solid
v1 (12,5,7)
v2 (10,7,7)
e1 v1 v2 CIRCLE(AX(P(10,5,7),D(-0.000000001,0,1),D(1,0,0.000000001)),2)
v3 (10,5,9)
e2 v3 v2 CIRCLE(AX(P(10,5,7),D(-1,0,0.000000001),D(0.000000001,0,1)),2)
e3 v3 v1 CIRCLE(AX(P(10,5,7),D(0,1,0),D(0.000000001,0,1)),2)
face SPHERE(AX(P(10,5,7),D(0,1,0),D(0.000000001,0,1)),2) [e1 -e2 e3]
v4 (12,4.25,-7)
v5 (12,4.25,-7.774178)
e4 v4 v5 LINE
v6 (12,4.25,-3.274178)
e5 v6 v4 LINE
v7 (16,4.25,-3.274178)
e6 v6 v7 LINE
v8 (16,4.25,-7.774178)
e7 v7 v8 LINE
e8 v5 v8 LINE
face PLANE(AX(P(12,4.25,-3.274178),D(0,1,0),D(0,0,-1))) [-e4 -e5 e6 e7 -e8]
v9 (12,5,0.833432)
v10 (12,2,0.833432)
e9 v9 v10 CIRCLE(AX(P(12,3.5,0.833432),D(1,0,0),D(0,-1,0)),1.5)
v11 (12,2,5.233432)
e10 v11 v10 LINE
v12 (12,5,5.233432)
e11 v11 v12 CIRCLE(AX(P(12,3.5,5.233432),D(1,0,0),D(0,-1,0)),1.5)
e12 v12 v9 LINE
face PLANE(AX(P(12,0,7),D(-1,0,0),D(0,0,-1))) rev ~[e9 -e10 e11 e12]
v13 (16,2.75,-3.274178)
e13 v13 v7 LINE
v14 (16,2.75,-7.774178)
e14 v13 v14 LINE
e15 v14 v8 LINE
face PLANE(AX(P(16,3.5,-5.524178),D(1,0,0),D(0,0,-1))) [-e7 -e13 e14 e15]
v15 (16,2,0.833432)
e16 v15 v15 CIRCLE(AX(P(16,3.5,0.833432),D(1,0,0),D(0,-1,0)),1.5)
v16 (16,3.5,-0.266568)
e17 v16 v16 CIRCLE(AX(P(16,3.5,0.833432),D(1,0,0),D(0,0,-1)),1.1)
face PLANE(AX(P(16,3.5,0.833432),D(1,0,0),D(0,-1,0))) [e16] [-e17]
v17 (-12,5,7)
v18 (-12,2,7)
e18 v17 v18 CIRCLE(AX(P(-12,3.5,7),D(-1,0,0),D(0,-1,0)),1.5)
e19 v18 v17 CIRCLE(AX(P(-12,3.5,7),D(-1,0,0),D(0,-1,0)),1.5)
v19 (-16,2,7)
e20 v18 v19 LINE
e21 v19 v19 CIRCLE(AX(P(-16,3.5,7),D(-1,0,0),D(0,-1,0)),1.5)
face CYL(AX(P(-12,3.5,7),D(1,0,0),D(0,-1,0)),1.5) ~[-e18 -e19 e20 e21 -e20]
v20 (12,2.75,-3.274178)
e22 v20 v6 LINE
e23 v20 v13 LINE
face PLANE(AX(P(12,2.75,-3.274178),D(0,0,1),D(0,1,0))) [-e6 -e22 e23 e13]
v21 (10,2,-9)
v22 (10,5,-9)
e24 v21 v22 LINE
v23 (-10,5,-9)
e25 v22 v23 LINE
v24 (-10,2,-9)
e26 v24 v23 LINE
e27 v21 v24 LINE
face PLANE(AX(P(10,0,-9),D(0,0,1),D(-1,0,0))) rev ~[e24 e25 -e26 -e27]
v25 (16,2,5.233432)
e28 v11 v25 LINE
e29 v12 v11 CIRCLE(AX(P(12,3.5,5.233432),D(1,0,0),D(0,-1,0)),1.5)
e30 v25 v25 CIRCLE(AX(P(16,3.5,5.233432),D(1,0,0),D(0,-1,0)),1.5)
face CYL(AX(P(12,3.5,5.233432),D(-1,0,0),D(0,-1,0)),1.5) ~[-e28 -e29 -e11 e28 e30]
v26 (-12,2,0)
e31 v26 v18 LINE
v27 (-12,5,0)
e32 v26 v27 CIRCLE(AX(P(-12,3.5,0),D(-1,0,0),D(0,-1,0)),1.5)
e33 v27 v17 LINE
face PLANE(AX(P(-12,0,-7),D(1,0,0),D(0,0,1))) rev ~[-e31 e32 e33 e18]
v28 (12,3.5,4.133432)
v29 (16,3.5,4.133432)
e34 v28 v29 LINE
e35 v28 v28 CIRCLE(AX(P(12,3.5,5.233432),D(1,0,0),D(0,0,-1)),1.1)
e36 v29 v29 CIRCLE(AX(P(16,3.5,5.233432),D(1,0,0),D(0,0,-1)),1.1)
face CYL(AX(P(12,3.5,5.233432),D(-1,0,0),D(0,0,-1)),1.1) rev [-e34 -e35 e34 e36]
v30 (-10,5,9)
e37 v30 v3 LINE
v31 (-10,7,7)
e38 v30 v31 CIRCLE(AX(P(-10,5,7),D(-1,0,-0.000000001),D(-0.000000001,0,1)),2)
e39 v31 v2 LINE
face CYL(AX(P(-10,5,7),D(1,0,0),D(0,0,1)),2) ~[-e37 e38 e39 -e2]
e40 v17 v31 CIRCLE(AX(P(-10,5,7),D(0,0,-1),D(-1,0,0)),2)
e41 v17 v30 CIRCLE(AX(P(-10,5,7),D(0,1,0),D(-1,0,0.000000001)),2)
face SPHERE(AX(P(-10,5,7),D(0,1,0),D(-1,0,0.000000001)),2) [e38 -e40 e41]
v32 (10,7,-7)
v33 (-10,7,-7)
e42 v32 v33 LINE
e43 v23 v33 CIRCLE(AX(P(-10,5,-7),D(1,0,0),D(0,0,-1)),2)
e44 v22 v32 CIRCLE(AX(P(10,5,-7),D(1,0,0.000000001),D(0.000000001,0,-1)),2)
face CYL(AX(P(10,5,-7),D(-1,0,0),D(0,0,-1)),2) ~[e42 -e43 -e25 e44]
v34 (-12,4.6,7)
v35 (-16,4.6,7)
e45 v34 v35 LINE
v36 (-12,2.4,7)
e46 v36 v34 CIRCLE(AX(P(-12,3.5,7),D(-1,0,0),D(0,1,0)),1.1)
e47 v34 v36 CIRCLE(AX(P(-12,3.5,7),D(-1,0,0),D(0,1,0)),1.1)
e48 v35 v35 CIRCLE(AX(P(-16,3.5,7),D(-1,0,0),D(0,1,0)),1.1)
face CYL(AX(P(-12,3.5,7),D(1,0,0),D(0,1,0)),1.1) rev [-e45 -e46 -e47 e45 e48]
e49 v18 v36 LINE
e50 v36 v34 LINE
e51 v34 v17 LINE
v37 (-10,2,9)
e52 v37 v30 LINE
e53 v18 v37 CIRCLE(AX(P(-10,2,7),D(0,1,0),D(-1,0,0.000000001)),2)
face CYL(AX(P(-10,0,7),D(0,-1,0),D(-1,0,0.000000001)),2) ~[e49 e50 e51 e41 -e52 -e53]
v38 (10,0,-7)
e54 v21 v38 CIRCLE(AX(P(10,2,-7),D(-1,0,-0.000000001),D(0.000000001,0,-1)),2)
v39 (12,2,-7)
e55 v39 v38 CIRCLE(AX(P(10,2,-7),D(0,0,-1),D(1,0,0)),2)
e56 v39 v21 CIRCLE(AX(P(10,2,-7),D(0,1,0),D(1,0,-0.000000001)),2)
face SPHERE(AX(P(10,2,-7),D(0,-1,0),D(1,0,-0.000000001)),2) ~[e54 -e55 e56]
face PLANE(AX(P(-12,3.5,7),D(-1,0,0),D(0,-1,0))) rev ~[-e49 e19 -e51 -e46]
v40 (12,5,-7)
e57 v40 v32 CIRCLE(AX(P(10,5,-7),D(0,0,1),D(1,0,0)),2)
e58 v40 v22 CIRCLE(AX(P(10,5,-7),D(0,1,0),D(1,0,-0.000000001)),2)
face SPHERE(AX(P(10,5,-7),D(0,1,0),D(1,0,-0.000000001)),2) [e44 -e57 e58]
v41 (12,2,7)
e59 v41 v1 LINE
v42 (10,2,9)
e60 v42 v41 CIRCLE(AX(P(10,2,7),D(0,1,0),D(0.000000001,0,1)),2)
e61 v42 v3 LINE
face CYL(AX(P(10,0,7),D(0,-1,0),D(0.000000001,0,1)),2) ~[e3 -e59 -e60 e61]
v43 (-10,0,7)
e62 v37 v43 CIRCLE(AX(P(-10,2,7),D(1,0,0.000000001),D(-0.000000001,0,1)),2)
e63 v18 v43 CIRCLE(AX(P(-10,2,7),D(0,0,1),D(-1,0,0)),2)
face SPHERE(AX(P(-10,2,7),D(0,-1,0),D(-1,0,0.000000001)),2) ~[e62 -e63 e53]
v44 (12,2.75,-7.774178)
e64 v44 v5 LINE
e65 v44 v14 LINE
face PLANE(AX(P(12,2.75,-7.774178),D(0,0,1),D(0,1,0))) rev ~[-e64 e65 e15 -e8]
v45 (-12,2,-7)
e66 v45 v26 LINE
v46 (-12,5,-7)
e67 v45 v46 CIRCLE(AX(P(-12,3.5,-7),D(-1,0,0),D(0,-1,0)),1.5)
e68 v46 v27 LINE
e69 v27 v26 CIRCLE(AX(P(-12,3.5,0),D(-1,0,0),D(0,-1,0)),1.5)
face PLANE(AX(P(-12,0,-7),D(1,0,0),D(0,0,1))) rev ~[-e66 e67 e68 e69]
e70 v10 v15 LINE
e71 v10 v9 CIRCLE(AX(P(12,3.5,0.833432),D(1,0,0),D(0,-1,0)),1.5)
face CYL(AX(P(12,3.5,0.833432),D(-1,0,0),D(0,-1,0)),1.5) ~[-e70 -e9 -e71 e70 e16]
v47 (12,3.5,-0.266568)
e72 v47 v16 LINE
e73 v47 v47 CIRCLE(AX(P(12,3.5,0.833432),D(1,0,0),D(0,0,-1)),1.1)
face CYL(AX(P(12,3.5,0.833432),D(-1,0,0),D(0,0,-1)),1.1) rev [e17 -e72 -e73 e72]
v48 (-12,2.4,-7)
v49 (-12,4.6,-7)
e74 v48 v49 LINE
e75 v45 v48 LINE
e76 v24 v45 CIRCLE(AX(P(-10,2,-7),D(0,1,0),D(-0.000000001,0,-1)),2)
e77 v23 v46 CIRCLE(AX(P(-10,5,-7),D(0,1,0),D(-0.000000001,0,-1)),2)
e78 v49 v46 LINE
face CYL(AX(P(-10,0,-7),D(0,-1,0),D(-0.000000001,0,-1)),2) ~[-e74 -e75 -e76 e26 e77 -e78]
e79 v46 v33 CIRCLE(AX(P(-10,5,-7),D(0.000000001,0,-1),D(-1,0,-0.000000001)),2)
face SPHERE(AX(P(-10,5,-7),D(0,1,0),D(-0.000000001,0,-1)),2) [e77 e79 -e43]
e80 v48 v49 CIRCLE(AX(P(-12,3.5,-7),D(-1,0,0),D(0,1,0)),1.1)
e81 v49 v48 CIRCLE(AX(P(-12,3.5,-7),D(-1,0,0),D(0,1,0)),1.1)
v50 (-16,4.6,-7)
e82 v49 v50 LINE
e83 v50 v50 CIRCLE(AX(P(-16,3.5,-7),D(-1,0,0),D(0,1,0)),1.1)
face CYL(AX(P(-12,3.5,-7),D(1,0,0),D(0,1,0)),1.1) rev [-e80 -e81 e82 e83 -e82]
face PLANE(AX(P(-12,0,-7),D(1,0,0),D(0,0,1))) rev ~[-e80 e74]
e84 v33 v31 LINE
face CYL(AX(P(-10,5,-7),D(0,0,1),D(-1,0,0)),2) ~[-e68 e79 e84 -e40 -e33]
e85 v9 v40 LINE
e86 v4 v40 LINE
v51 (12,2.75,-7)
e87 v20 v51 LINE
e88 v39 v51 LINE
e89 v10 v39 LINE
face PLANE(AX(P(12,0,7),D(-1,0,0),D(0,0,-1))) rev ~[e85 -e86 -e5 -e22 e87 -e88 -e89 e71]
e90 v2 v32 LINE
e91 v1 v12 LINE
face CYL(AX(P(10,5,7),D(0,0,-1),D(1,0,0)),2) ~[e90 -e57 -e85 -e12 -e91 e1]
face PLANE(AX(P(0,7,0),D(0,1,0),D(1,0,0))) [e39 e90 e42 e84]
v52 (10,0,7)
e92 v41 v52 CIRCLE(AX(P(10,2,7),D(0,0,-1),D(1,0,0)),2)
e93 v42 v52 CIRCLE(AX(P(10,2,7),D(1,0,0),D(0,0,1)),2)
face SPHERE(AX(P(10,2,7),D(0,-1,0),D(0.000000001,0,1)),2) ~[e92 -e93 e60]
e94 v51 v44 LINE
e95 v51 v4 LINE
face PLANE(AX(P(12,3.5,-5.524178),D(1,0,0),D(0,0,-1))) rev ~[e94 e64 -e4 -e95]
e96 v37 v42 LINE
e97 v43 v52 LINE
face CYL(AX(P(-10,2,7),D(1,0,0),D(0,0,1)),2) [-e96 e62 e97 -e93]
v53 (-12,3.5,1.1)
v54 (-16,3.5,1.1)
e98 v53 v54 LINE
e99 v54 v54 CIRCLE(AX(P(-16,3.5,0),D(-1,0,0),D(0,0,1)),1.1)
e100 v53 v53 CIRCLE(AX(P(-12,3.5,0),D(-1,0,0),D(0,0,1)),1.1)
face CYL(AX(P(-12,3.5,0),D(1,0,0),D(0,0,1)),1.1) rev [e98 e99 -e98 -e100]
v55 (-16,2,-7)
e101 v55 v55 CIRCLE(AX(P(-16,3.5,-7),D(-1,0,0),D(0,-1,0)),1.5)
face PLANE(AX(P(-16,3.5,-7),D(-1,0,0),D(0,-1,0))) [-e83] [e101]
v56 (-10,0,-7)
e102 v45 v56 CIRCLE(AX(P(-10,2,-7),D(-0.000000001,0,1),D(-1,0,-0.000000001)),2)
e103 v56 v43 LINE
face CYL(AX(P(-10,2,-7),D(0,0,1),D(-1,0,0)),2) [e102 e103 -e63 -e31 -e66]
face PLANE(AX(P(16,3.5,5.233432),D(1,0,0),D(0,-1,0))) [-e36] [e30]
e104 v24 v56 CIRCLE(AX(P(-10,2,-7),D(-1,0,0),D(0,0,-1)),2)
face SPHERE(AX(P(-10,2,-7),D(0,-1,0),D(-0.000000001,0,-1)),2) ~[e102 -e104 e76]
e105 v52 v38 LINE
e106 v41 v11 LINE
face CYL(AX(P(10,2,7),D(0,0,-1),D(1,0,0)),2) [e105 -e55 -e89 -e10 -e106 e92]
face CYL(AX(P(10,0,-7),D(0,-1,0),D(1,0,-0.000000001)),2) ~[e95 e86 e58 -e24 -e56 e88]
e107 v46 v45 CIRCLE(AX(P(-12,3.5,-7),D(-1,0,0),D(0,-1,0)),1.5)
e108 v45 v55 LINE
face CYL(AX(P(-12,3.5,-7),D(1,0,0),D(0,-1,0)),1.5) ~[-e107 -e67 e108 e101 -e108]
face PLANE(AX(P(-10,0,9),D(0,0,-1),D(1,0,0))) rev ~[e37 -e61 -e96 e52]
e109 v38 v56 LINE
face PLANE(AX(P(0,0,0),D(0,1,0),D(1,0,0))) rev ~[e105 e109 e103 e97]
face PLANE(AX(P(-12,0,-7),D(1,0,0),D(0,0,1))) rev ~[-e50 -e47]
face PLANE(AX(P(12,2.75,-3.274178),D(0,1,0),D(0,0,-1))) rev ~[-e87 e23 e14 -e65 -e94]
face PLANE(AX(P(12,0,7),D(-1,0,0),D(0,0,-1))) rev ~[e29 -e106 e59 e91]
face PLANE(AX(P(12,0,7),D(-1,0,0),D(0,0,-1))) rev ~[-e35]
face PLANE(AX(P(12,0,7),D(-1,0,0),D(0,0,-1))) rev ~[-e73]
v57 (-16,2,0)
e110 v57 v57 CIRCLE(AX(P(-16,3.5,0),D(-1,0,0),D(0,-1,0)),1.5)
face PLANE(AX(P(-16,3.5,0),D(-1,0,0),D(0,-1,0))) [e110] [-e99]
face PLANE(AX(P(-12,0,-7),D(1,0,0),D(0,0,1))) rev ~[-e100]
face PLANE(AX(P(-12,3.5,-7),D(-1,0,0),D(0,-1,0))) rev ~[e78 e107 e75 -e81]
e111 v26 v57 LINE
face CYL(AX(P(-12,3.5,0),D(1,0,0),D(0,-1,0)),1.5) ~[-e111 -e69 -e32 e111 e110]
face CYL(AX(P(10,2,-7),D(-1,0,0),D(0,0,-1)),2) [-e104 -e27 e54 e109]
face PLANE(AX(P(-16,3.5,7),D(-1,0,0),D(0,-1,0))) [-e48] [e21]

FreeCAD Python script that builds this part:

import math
import FreeCAD as App
import Part
import Sketcher


def edges_at(feature, points):
    """Names of the edges that pass closest to the given points."""
    edges = feature.Shape.Edges
    near = lambda p: min(range(len(edges)), key=lambda i: edges[i].distToShape(Part.Vertex(*p))[0])
    return sorted({f"Edge{near(p) + 1}" for p in points})

doc = App.newDocument("Part")
body = doc.addObject("PartDesign::Body", "Body")

# Sketch on XZ plane
sketch1 = doc.addObject("Sketcher::SketchObject", "Sketch")
body.addObject(sketch1)
sketch1.AttachmentSupport = (doc.XZ_Plane, [""])
sketch1.MapMode = "FlatFace"
sketch1.addGeometry(Part.LineSegment(App.Vector(10, -9, 0), App.Vector(-10, -9, 0)), False)
sketch1.addGeometry(Part.ArcOfCircle(Part.Circle(App.Vector(-10, -7, 0), App.Vector(0, 0, 1), 2), math.radians(-180), math.radians(-90)), False)
sketch1.addGeometry(Part.LineSegment(App.Vector(-12, -7, 0), App.Vector(-12, 7, 0)), False)
sketch1.addGeometry(Part.ArcOfCircle(Part.Circle(App.Vector(-10, 7, 0), App.Vector(0, 0, 1), 2), math.radians(90), math.radians(180)), False)
sketch1.addGeometry(Part.LineSegment(App.Vector(-10, 9, 0), App.Vector(10, 9, 0)), False)
sketch1.addGeometry(Part.ArcOfCircle(Part.Circle(App.Vector(10, 7, 0), App.Vector(0, 0, 1), 2), math.radians(0), math.radians(90)), False)
sketch1.addGeometry(Part.LineSegment(App.Vector(12, 7, 0), App.Vector(12, -7, 0)), False)
sketch1.addGeometry(Part.ArcOfCircle(Part.Circle(App.Vector(10, -7, 0), App.Vector(0, 0, 1), 2), math.radians(-90), math.radians(0)), False)
sketch1.addConstraint(Sketcher.Constraint("Tangent", 0, 2, 1, 2))
sketch1.addConstraint(Sketcher.Constraint("Tangent", 1, 1, 2, 1))
sketch1.addConstraint(Sketcher.Constraint("Tangent", 2, 2, 3, 2))
sketch1.addConstraint(Sketcher.Constraint("Tangent", 3, 1, 4, 1))
sketch1.addConstraint(Sketcher.Constraint("Tangent", 4, 2, 5, 2))
sketch1.addConstraint(Sketcher.Constraint("Tangent", 5, 1, 6, 1))
sketch1.addConstraint(Sketcher.Constraint("Tangent", 6, 2, 7, 2))
sketch1.addConstraint(Sketcher.Constraint("Tangent", 7, 1, 0, 1))
sketch1.addConstraint(Sketcher.Constraint("Horizontal", 0))
sketch1.addConstraint(Sketcher.Constraint("Vertical", 2))
sketch1.addConstraint(Sketcher.Constraint("Horizontal", 4))
sketch1.addConstraint(Sketcher.Constraint("Vertical", 6))
sketch1.addConstraint(Sketcher.Constraint("Equal", 1, 3))
sketch1.addConstraint(Sketcher.Constraint("Equal", 3, 5))
sketch1.addConstraint(Sketcher.Constraint("Equal", 5, 7))
sketch1.addConstraint(Sketcher.Constraint("Symmetric", 1, 3, 5, 3, -1, 1))
sketch1.addConstraint(Sketcher.Constraint("Radius", 1, 2.0))
sketch1.addConstraint(Sketcher.Constraint("DistanceX", 0, 2, 0, 1, 20.0))
sketch1.addConstraint(Sketcher.Constraint("DistanceY", 2, 1, 2, 2, 14.0))
pad1 = doc.addObject("PartDesign::Pad", "Pad")
body.addObject(pad1)
pad1.Profile = sketch1
pad1.Length = 7
pad1.Reversed = True
doc.recompute()

fillet = doc.addObject("PartDesign::Fillet", "Fillet")
body.addObject(fillet)
fillet.Base = (pad1, edges_at(pad1, [
    (12, 0, 0),
    (11.414, 0, 8.414),
    (0, 0, 9),
    (-11.414, 0, 8.414),
    (11.414, 7, 8.414),
    (12, 7, 0),
    (11.414, 7, -8.414),
    (0, 7, -9),
    (-11.414, 7, -8.414),
    (-12, 7, 0),
    (-11.414, 7, 8.414),
    (-12, 0, 0),
    (0, 7, 9),
    (-11.414, 0, -8.414),
    (0, 0, -9),
    (11.414, 0, -8.414),
]))
fillet.Radius = 2

# Sketch on YZ plane
sketch2 = doc.addObject("Sketcher::SketchObject", "Sketch001")
body.addObject(sketch2)
sketch2.AttachmentSupport = (doc.YZ_Plane, [""])
sketch2.MapMode = "FlatFace"
sketch2.AttachmentOffset = App.Placement(App.Vector(0, 0, -12), App.Rotation())
sketch2.addGeometry(Part.Circle(App.Vector(3.5, 0, 0), App.Vector(0, 0, 1), 1.5), False)
sketch2.addGeometry(Part.Circle(App.Vector(3.5, 0, 0), App.Vector(0, 0, 1), 1.1), False)
sketch2.addGeometry(Part.Circle(App.Vector(3.5, 7, 0), App.Vector(0, 0, 1), 1.5), False)
sketch2.addGeometry(Part.Circle(App.Vector(3.5, 7, 0), App.Vector(0, 0, 1), 1.1), False)
sketch2.addGeometry(Part.Circle(App.Vector(3.5, -7, 0), App.Vector(0, 0, 1), 1.5), False)
sketch2.addGeometry(Part.Circle(App.Vector(3.5, -7, 0), App.Vector(0, 0, 1), 1.1), False)
sketch2.addConstraint(Sketcher.Constraint("Coincident", 1, 3, 0, 3))
sketch2.addConstraint(Sketcher.Constraint("Coincident", 3, 3, 2, 3))
sketch2.addConstraint(Sketcher.Constraint("Coincident", 5, 3, 4, 3))
sketch2.addConstraint(Sketcher.Constraint("Equal", 0, 2))
sketch2.addConstraint(Sketcher.Constraint("Equal", 1, 3))
sketch2.addConstraint(Sketcher.Constraint("Equal", 2, 4))
sketch2.addConstraint(Sketcher.Constraint("Equal", 3, 5))
sketch2.addConstraint(Sketcher.Constraint("Symmetric", 2, 3, 4, 3, -1))
sketch2.addConstraint(Sketcher.Constraint("PointOnObject", 0, 3, -1))
sketch2.addConstraint(Sketcher.Constraint("Vertical", 1, 3, 2, 3))
sketch2.addConstraint(Sketcher.Constraint("Diameter", 0, 3.0))
sketch2.addConstraint(Sketcher.Constraint("Diameter", 1, 2.2))
sketch2.addConstraint(Sketcher.Constraint("DistanceY", -1, 1, 2, 3, 7.0))
sketch2.addConstraint(Sketcher.Constraint("DistanceX", -1, 1, 0, 3, 3.5))
pad2 = doc.addObject("PartDesign::Pad", "Pad001")
body.addObject(pad2)
pad2.Profile = sketch2
pad2.Length = 4
pad2.Reversed = True

# Sketch on YZ plane
sketch3 = doc.addObject("Sketcher::SketchObject", "Sketch002")
body.addObject(sketch3)
sketch3.AttachmentSupport = (doc.YZ_Plane, [""])
sketch3.MapMode = "FlatFace"
sketch3.AttachmentOffset = App.Placement(App.Vector(0, 0, 12), App.Rotation())
sketch3.addGeometry(Part.Circle(App.Vector(3.5, 5.233432, 0), App.Vector(0, 0, 1), 1.5), False)
sketch3.addGeometry(Part.Circle(App.Vector(3.5, 5.233432, 0), App.Vector(0, 0, 1), 1.1), False)
sketch3.addGeometry(Part.Circle(App.Vector(3.5, 0.833432, 0), App.Vector(0, 0, 1), 1.5), False)
sketch3.addGeometry(Part.Circle(App.Vector(3.5, 0.833432, 0), App.Vector(0, 0, 1), 1.1), False)
sketch3.addGeometry(Part.LineSegment(App.Vector(4.25, -3.274178, 0), App.Vector(2.75, -3.274178, 0)), False)
sketch3.addGeometry(Part.LineSegment(App.Vector(2.75, -3.274178, 0), App.Vector(2.75, -7.774178, 0)), False)
sketch3.addGeometry(Part.LineSegment(App.Vector(2.75, -7.774178, 0), App.Vector(4.25, -7.774178, 0)), False)
sketch3.addGeometry(Part.LineSegment(App.Vector(4.25, -7.774178, 0), App.Vector(4.25, -3.274178, 0)), False)
sketch3.addConstraint(Sketcher.Constraint("Coincident", 4, 2, 5, 1))
sketch3.addConstraint(Sketcher.Constraint("Coincident", 5, 2, 6, 1))
sketch3.addConstraint(Sketcher.Constraint("Coincident", 6, 2, 7, 1))
sketch3.addConstraint(Sketcher.Constraint("Coincident", 7, 2, 4, 1))
sketch3.addConstraint(Sketcher.Constraint("Horizontal", 4))
sketch3.addConstraint(Sketcher.Constraint("Vertical", 5))
sketch3.addConstraint(Sketcher.Constraint("Horizontal", 6))
sketch3.addConstraint(Sketcher.Constraint("Vertical", 7))
sketch3.addConstraint(Sketcher.Constraint("Coincident", 1, 3, 0, 3))
sketch3.addConstraint(Sketcher.Constraint("Coincident", 3, 3, 2, 3))
sketch3.addConstraint(Sketcher.Constraint("Equal", 0, 2))
sketch3.addConstraint(Sketcher.Constraint("Equal", 1, 3))
sketch3.addConstraint(Sketcher.Constraint("Vertical", 1, 3, 2, 3))
sketch3.addConstraint(Sketcher.Constraint("Diameter", 0, 3.0))
sketch3.addConstraint(Sketcher.Constraint("Diameter", 1, 2.2))
sketch3.addConstraint(Sketcher.Constraint("DistanceX", 4, 2, 4, 1, 1.5))
sketch3.addConstraint(Sketcher.Constraint("DistanceY", 5, 2, 5, 1, 4.5))
sketch3.addConstraint(Sketcher.Constraint("DistanceX", -1, 1, 0, 3, 3.5))
sketch3.addConstraint(Sketcher.Constraint("DistanceY", 2, 3, 0, 3, 4.4))
sketch3.addConstraint(Sketcher.Constraint("DistanceX", -1, 1, 4, 2, 2.75))
sketch3.addConstraint(Sketcher.Constraint("DistanceY", -1, 1, 0, 3, 5.233432))
sketch3.addConstraint(Sketcher.Constraint("DistanceY", 4, 2, 2, 3, 4.10761))
pad3 = doc.addObject("PartDesign::Pad", "Pad002")
body.addObject(pad3)
pad3.Profile = sketch3
pad3.Length = 4

doc.recompute()
